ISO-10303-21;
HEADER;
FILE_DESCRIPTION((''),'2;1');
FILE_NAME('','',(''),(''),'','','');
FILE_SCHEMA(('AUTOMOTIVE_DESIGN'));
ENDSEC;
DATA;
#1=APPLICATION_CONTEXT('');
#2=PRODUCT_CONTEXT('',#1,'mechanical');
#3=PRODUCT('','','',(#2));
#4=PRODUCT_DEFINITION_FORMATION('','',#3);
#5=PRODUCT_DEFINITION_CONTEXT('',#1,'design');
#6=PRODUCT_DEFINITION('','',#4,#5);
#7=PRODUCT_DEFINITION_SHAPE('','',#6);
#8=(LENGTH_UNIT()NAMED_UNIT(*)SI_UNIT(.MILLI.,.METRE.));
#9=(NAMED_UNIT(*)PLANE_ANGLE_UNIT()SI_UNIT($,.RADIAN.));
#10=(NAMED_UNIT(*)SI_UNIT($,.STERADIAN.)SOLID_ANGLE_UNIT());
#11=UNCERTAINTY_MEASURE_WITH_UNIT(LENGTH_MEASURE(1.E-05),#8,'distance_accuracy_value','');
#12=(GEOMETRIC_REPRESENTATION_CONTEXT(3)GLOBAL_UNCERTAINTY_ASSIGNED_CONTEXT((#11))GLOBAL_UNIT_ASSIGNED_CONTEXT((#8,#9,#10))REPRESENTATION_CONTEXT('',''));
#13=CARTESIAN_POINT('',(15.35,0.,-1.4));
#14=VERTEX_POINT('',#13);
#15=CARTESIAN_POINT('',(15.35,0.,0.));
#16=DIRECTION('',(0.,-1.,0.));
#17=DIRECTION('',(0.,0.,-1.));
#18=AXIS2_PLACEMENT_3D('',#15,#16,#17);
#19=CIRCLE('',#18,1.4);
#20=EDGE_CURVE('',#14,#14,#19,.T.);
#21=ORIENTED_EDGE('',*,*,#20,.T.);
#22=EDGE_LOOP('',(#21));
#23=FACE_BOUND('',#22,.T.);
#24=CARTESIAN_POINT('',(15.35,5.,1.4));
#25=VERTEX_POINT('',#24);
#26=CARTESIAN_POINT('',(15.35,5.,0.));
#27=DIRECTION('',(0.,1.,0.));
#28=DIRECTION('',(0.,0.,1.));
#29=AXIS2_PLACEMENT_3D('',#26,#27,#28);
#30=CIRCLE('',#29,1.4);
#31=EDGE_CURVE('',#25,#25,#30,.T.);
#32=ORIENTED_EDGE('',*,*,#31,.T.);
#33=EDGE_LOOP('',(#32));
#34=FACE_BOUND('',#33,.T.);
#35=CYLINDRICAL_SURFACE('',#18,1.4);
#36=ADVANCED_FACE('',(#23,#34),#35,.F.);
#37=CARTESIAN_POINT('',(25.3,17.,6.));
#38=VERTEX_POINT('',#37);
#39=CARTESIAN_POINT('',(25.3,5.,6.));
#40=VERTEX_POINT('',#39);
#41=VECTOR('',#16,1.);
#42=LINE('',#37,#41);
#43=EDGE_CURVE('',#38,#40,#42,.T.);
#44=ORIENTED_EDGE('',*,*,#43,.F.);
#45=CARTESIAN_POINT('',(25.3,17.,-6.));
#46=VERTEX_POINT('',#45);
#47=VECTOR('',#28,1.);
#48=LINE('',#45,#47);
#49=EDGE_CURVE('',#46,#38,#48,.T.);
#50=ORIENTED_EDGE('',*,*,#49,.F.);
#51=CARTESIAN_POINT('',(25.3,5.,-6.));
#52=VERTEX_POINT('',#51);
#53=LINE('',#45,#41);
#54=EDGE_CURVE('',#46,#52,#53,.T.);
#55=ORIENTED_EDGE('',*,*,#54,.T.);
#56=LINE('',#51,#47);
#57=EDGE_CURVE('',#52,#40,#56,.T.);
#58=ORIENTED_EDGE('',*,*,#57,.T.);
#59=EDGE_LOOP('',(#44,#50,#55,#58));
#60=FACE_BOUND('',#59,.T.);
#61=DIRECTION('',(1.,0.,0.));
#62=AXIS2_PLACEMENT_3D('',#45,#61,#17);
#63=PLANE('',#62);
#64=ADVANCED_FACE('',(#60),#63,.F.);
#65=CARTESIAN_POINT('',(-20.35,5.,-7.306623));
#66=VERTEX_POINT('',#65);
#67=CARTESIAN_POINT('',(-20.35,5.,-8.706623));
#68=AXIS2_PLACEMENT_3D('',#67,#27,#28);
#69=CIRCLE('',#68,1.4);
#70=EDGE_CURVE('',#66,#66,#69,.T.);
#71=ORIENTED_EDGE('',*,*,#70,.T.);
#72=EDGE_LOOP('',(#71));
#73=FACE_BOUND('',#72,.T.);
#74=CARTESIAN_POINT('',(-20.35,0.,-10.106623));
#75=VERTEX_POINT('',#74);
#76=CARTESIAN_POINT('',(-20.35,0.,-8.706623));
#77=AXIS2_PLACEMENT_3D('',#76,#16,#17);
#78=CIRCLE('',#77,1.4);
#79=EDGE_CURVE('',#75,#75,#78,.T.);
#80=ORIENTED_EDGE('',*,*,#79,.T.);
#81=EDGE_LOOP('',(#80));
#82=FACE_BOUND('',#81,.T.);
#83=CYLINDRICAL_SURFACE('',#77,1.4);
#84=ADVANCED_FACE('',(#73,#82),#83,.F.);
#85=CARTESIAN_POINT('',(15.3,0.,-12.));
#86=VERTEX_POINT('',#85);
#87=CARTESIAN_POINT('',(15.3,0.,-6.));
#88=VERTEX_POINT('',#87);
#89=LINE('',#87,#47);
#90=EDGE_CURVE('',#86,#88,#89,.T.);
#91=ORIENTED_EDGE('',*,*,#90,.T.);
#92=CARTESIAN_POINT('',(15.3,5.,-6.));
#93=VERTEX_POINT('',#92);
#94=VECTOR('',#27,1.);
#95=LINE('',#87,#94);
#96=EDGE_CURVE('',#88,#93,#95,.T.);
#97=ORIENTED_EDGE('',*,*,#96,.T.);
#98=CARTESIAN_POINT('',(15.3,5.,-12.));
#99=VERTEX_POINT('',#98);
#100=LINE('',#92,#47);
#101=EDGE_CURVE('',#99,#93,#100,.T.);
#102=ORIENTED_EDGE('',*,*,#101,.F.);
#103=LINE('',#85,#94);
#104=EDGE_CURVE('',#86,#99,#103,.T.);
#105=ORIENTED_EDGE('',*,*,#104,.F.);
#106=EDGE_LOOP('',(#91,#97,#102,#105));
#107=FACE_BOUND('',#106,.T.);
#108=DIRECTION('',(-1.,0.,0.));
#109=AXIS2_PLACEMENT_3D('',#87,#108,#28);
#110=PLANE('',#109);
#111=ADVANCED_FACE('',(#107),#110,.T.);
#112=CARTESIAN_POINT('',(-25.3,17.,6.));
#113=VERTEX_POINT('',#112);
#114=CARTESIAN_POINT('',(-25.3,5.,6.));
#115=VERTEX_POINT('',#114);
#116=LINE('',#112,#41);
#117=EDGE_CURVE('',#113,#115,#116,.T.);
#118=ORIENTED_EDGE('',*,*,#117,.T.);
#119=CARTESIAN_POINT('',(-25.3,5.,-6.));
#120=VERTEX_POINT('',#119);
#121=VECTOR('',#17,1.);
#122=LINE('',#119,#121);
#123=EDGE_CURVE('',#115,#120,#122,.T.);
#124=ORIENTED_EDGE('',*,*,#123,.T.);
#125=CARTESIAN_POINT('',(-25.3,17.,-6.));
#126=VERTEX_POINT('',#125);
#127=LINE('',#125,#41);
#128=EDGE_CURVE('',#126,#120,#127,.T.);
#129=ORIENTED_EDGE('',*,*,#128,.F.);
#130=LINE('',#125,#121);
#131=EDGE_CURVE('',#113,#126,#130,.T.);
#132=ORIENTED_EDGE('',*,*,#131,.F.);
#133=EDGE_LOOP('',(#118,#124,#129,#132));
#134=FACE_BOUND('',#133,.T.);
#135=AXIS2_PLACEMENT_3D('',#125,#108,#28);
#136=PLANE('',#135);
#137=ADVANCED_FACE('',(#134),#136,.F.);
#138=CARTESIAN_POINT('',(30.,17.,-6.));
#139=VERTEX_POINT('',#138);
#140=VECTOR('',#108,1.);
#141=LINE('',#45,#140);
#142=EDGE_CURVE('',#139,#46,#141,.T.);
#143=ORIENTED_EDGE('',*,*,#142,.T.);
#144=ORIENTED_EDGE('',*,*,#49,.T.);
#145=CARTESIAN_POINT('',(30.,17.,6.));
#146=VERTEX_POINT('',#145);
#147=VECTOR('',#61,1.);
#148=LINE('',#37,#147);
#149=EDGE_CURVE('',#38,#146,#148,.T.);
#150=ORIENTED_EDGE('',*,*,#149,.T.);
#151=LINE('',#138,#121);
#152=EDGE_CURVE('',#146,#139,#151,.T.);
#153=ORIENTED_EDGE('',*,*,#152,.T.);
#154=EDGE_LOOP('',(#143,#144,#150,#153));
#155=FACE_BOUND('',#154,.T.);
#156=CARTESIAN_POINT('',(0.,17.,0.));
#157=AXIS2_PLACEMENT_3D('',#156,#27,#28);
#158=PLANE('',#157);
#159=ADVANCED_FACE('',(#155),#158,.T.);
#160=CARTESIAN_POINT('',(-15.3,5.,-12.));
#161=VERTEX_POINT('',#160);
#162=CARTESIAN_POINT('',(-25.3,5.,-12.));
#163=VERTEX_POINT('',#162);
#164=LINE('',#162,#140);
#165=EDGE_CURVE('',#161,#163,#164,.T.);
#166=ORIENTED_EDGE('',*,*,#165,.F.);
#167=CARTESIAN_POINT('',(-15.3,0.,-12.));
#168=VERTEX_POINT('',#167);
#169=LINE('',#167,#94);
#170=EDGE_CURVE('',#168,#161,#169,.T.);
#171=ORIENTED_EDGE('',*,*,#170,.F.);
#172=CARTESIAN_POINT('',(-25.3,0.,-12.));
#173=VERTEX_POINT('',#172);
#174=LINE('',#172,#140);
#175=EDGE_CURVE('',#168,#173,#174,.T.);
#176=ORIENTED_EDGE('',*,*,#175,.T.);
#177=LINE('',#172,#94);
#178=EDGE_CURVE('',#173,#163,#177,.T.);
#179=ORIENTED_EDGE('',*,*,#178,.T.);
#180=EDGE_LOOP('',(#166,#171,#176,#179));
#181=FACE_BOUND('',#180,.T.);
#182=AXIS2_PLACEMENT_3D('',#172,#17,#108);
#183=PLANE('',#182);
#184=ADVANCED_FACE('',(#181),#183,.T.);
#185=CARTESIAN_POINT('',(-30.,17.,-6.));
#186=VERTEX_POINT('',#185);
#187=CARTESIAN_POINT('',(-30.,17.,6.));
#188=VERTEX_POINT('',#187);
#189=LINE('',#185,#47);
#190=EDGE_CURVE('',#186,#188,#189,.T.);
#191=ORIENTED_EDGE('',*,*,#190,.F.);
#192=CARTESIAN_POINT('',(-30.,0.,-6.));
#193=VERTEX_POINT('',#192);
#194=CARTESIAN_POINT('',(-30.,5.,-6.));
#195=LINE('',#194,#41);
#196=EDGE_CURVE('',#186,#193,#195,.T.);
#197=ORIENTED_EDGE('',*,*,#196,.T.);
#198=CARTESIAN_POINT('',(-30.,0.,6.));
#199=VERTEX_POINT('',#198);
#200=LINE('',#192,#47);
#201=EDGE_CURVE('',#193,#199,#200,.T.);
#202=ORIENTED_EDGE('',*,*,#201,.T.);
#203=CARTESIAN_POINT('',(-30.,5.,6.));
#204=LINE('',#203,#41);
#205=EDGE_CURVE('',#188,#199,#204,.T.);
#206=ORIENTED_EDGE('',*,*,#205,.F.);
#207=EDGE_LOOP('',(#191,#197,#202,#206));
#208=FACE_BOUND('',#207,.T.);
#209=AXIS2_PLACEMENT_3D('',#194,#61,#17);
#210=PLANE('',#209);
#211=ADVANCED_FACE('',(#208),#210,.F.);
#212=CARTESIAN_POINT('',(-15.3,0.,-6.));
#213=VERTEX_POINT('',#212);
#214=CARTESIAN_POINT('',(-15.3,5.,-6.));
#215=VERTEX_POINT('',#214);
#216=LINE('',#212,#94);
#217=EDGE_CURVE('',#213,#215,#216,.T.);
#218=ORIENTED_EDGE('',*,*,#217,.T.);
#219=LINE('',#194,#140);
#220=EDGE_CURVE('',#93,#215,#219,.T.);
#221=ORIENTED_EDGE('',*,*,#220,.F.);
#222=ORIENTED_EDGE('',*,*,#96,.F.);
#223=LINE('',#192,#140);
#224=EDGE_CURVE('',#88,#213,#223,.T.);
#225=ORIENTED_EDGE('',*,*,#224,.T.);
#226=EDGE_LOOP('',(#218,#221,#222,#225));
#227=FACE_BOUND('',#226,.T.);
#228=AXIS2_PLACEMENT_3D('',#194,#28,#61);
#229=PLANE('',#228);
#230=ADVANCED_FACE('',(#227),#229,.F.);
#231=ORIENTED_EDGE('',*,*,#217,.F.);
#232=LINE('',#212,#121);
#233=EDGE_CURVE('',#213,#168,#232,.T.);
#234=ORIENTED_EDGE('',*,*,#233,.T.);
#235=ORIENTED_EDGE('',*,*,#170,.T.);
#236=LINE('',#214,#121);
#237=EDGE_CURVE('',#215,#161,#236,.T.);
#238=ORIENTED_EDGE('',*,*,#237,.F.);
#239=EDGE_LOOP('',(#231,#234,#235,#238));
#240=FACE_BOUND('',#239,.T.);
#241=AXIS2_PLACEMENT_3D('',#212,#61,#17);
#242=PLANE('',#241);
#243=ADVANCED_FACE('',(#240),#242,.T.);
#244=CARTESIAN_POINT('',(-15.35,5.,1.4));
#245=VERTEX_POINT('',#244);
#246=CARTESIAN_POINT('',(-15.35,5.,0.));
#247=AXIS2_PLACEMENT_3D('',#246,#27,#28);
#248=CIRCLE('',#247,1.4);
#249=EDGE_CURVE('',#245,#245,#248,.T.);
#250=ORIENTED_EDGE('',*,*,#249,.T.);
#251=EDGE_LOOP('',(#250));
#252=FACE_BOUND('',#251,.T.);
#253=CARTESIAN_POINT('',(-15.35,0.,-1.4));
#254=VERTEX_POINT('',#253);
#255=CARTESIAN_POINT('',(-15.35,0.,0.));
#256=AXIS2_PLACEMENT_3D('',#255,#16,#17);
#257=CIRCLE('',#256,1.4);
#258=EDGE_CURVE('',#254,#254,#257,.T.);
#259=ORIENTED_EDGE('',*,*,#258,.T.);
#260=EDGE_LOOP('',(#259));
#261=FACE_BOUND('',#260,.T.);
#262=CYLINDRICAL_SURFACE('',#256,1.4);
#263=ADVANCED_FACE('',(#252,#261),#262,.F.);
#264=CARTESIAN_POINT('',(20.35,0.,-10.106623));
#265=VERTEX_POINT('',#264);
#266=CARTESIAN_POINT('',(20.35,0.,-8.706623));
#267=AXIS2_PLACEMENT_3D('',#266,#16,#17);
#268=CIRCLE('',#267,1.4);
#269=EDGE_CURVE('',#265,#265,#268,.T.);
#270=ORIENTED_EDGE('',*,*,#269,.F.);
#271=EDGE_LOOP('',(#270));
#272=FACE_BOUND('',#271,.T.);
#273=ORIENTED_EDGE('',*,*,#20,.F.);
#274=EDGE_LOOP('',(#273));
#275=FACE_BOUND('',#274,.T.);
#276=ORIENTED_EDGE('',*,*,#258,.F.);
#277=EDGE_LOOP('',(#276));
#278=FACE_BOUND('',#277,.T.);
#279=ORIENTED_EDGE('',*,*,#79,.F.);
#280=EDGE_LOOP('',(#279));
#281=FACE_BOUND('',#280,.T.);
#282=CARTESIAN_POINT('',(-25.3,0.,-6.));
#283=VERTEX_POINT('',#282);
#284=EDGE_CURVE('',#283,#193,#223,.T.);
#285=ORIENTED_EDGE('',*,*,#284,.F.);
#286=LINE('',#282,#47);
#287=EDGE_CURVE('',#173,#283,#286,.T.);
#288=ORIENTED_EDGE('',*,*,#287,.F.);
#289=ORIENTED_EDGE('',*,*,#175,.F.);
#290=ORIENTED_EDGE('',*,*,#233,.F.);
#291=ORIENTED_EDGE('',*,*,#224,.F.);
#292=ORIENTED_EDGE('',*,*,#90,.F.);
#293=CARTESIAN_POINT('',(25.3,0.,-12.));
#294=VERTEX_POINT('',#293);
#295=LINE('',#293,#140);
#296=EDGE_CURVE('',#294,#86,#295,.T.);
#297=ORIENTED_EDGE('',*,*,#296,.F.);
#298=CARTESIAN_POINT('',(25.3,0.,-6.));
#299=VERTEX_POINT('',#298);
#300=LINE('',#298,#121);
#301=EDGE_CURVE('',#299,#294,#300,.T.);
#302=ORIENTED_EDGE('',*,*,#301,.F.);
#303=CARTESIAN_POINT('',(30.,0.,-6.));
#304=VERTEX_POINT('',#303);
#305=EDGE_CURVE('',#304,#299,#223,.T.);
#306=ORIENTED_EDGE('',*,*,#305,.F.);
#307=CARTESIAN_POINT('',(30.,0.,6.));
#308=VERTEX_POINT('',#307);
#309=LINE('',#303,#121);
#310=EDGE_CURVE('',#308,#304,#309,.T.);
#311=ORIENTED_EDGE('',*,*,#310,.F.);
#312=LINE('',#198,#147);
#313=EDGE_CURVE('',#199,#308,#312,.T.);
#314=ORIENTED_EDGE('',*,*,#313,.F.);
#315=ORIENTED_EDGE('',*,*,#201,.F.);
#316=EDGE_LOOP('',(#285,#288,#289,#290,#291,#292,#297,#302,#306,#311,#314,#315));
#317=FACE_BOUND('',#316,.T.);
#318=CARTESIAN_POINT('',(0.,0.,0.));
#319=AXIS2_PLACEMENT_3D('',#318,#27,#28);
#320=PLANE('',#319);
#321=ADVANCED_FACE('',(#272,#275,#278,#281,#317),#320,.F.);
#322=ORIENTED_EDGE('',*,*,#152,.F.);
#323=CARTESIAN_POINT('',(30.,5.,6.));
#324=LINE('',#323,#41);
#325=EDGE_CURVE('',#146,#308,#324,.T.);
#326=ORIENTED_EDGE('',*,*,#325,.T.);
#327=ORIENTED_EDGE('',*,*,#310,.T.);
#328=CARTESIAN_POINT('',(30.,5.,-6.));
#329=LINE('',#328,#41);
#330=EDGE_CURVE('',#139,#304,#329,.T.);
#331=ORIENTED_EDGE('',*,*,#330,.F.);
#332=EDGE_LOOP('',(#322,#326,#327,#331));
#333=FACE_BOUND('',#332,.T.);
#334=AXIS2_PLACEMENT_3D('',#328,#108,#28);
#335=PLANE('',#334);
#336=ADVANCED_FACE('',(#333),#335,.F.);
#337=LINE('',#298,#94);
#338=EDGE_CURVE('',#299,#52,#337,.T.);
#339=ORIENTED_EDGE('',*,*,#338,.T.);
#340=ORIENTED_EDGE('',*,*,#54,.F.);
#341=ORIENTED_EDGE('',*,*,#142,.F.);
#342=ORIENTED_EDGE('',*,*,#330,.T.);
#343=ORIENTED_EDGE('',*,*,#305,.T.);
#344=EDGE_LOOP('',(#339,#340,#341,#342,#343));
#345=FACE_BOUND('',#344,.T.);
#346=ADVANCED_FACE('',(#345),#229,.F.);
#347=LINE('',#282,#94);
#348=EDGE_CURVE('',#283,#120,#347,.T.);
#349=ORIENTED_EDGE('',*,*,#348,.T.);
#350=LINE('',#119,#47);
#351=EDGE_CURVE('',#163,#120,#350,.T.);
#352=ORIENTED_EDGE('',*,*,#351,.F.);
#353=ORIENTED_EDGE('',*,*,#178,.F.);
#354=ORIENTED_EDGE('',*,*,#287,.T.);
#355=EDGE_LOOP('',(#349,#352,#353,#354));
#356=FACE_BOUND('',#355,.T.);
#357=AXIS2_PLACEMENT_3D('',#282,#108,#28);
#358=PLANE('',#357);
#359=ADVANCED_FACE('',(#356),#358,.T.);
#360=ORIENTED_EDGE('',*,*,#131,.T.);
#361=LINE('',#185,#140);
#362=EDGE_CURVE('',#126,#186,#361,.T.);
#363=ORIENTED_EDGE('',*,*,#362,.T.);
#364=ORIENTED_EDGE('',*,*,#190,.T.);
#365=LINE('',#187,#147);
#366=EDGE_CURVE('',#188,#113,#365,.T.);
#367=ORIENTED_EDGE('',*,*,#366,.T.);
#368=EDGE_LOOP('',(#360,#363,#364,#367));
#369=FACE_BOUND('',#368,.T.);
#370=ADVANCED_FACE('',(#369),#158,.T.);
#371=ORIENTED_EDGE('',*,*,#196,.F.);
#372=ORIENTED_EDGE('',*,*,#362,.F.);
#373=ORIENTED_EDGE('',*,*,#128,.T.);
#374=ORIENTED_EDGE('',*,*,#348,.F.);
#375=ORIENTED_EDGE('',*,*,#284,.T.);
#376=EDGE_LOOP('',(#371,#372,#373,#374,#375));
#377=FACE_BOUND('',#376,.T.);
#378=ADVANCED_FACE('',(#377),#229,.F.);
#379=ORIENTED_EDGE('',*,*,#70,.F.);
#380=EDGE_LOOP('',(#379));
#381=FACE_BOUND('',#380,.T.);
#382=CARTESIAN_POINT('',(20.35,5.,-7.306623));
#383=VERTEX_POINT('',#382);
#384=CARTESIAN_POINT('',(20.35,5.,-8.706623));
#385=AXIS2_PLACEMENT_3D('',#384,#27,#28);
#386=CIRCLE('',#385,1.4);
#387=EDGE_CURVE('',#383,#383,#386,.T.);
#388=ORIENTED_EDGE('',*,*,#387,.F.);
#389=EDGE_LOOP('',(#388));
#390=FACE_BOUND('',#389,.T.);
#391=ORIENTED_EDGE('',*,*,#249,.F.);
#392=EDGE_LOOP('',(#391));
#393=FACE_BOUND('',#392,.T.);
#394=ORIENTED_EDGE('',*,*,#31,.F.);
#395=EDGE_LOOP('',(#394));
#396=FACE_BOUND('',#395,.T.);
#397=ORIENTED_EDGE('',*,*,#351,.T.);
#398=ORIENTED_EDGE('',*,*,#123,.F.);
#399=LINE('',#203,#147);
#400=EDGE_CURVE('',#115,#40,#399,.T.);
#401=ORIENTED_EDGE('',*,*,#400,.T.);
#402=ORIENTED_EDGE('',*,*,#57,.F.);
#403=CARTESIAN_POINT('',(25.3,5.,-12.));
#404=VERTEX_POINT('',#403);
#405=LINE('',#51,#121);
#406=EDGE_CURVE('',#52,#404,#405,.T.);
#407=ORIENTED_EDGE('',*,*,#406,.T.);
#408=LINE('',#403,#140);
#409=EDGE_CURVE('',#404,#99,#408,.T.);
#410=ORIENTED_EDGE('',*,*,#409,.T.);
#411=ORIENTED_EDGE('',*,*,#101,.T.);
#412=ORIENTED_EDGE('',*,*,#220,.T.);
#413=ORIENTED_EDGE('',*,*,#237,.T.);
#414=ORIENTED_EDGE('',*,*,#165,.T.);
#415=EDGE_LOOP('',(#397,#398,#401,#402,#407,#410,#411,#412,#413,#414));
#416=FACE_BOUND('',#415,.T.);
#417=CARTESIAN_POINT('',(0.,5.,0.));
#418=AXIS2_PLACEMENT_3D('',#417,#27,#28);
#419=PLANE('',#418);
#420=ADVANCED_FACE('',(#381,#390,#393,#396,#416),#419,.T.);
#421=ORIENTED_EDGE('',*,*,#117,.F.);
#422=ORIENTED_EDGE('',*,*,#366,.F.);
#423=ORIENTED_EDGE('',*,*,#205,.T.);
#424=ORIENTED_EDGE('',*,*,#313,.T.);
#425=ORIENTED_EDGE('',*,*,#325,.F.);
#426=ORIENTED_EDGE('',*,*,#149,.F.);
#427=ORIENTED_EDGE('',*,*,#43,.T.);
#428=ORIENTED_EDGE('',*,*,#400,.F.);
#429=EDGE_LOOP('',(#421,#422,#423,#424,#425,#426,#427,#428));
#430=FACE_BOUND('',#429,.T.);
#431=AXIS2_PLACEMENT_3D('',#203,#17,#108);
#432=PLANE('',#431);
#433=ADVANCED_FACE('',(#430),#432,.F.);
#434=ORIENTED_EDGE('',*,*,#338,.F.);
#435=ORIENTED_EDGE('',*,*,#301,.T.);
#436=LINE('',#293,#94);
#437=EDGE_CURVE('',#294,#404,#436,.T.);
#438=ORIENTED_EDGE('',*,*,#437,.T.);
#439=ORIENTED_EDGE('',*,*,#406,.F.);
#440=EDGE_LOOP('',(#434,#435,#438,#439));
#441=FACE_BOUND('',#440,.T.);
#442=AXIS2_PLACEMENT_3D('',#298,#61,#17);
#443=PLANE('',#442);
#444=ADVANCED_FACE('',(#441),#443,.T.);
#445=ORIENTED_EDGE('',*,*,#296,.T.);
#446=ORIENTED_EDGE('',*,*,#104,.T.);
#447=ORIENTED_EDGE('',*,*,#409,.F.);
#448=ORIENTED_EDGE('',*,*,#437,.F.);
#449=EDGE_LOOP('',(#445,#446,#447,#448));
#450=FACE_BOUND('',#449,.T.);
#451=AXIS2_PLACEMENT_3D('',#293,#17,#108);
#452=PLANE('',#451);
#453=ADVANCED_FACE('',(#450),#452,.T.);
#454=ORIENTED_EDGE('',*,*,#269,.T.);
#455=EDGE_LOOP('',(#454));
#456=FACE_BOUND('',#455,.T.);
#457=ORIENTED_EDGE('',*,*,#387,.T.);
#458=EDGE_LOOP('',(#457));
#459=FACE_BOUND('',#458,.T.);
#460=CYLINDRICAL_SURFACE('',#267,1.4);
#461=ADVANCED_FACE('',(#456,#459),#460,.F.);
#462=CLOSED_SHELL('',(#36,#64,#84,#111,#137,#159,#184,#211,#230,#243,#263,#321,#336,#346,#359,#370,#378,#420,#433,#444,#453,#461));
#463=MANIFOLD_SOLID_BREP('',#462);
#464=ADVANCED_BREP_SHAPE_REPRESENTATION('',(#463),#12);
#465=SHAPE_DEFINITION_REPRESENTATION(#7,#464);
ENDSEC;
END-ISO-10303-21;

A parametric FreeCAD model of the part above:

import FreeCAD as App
import Part
import Sketcher


def add_polygon(sketch, points):
    """Adds a closed chain of lines whose ends are joined by coincident constraints."""
    first, n = sketch.GeometryCount, len(points)
    for a, b in zip(points, points[1:] + points[:1]):
        sketch.addGeometry(Part.LineSegment(App.Vector(*a, 0), App.Vector(*b, 0)), False)
    for i in range(n):
        sketch.addConstraint(Sketcher.Constraint("Coincident", first + i, 2, first + (i + 1) % n, 1))

doc = App.newDocument("Part")
body = doc.addObject("PartDesign::Body", "Body")

sketch1 = body.newObject("Sketcher::SketchObject", "Sketch")
sketch1.AttachmentSupport = (doc.getObject("XZ_Plane"), [""])
sketch1.MapMode = "FlatFace"
add_polygon(sketch1, [(-30, -6), (-30, 6), (30, 6), (30, -6)])
sketch1.addConstraint([
    Sketcher.Constraint("Vertical", 0),
    Sketcher.Constraint("Horizontal", 1),
    Sketcher.Constraint("Vertical", 2),
    Sketcher.Constraint("Horizontal", 3),
    Sketcher.Constraint("Symmetric", 0, 2, 2, 2, -1, 1),
    Sketcher.Constraint("DistanceX", 1, 1, 1, 2, 60.0),
    Sketcher.Constraint("DistanceY", 0, 1, 0, 2, 12.0),
])
pad1 = body.newObject("PartDesign::Pad", "Pad")
pad1.Profile = sketch1
pad1.Length = 5
pad1.Reversed = True

sketch2 = body.newObject("Sketcher::SketchObject", "Sketch001")
sketch2.AttachmentSupport = (doc.getObject("XZ_Plane"), [""])
sketch2.MapMode = "FlatFace"
sketch2.AttachmentOffset = App.Placement(App.Vector(0, 0, -5), App.Rotation())
add_polygon(sketch2, [(-30, -6), (-30, 6), (-25.3, 6), (-25.3, -6)])
add_polygon(sketch2, [(25.3, -6), (25.3, 6), (30, 6), (30, -6)])
sketch2.addConstraint([
    Sketcher.Constraint("Vertical", 0),
    Sketcher.Constraint("Horizontal", 1),
    Sketcher.Constraint("Vertical", 2),
    Sketcher.Constraint("Horizontal", 3),
    Sketcher.Constraint("Vertical", 4),
    Sketcher.Constraint("Horizontal", 5),
    Sketcher.Constraint("Vertical", 6),
    Sketcher.Constraint("Horizontal", 7),
    Sketcher.Constraint("Symmetric", 2, 2, 4, 2, -1, 1),
    Sketcher.Constraint("Symmetric", 0, 2, 6, 2, -1, 1),
    Sketcher.Constraint("Horizontal", 1, 2, 4, 2),
    Sketcher.Constraint("DistanceY", 0, 1, 0, 2, 12.0),
    Sketcher.Constraint("DistanceX", 1, 1, 1, 2, 4.7),
    Sketcher.Constraint("DistanceX", 0, 2, -1, 1, 30.0),
])
pad2 = body.newObject("PartDesign::Pad", "Pad001")
pad2.Profile = sketch2
pad2.Length = 12
pad2.Reversed = True

sketch3 = body.newObject("Sketcher::SketchObject", "Sketch002")
sketch3.AttachmentSupport = (doc.getObject("XZ_Plane"), [""])
sketch3.MapMode = "FlatFace"
sketch3.addGeometry([
    Part.Circle(App.Vector(15.35, 0, 0), App.Vector(0, 0, 1), 1.4),
    Part.Circle(App.Vector(-15.35, 0, 0), App.Vector(0, 0, 1), 1.4),
], False)
sketch3.addConstraint([
    Sketcher.Constraint("Equal", 0, 1),
    Sketcher.Constraint("Symmetric", 0, 3, 1, 3, -1, 1),
    Sketcher.Constraint("PointOnObject", 0, 3, -1),
    Sketcher.Constraint("Diameter", 0, 2.8),
    Sketcher.Constraint("DistanceX", 1, 3, 0, 3, 30.7),
])
doc.recompute()
hole = body.newObject("PartDesign::Hole", "Hole")
hole.Profile = sketch3
hole.ThreadType = "None"
hole.Diameter = 2.8
hole.DepthType = "ThroughAll"

sketch4 = body.newObject("Sketcher::SketchObject", "Sketch003")
sketch4.AttachmentSupport = (doc.getObject("XZ_Plane"), [""])
sketch4.MapMode = "FlatFace"
sketch4.AttachmentOffset = App.Placement(App.Vector(0, 0, -5), App.Rotation())
add_polygon(sketch4, [(-25.3, -12), (-25.3, -6), (-15.3, -6), (-15.3, -12)])
add_polygon(sketch4, [(15.3, -12), (15.3, -6), (25.3, -6), (25.3, -12)])
sketch4.addConstraint([
    Sketcher.Constraint("Vertical", 0),
    Sketcher.Constraint("Horizontal", 1),
    Sketcher.Constraint("Vertical", 2),
    Sketcher.Constraint("Horizontal", 3),
    Sketcher.Constraint("Vertical", 4),
    Sketcher.Constraint("Horizontal", 5),
    Sketcher.Constraint("Vertical", 6),
    Sketcher.Constraint("Horizontal", 7),
    Sketcher.Constraint("Symmetric", 1, 2, 4, 2, -2),
    Sketcher.Constraint("Symmetric", 3, 2, 6, 2, -2),
    Sketcher.Constraint("DistanceX", 1, 1, 1, 2, 10.0),
    Sketcher.Constraint("DistanceY", 0, 1, 0, 2, 6.0),
    Sketcher.Constraint("DistanceY", 0, 2, -1, 1, 6.0),
    Sketcher.Constraint("DistanceX", 0, 2, -1, 1, 25.3),
])
pad3 = body.newObject("PartDesign::Pad", "Pad002")
pad3.Profile = sketch4
pad3.Length = 5

sketch5 = body.newObject("Sketcher::SketchObject", "Sketch004")
sketch5.AttachmentSupport = (doc.getObject("XZ_Plane"), [""])
sketch5.MapMode = "FlatFace"
sketch5.addGeometry([
    Part.Circle(App.Vector(-20.35, -8.706623, 0), App.Vector(0, 0, 1), 1.4),
    Part.Circle(App.Vector(20.35, -8.706623, 0), App.Vector(0, 0, 1), 1.4),
], False)
sketch5.addConstraint([
    Sketcher.Constraint("Equal", 0, 1),
    Sketcher.Constraint("Symmetric", 0, 3, 1, 3, -2),
    Sketcher.Constraint("Diameter", 0, 2.8),
    Sketcher.Constraint("DistanceX", 0, 3, 1, 3, 40.7),
    Sketcher.Constraint("DistanceY", 0, 3, -1, 1, 8.706623),
])
doc.recompute()
hole2 = body.newObject("PartDesign::Hole", "Hole001")
hole2.Profile = sketch5
hole2.ThreadType = "None"
hole2.Diameter = 2.8
hole2.DepthType = "ThroughAll"

doc.recompute()
